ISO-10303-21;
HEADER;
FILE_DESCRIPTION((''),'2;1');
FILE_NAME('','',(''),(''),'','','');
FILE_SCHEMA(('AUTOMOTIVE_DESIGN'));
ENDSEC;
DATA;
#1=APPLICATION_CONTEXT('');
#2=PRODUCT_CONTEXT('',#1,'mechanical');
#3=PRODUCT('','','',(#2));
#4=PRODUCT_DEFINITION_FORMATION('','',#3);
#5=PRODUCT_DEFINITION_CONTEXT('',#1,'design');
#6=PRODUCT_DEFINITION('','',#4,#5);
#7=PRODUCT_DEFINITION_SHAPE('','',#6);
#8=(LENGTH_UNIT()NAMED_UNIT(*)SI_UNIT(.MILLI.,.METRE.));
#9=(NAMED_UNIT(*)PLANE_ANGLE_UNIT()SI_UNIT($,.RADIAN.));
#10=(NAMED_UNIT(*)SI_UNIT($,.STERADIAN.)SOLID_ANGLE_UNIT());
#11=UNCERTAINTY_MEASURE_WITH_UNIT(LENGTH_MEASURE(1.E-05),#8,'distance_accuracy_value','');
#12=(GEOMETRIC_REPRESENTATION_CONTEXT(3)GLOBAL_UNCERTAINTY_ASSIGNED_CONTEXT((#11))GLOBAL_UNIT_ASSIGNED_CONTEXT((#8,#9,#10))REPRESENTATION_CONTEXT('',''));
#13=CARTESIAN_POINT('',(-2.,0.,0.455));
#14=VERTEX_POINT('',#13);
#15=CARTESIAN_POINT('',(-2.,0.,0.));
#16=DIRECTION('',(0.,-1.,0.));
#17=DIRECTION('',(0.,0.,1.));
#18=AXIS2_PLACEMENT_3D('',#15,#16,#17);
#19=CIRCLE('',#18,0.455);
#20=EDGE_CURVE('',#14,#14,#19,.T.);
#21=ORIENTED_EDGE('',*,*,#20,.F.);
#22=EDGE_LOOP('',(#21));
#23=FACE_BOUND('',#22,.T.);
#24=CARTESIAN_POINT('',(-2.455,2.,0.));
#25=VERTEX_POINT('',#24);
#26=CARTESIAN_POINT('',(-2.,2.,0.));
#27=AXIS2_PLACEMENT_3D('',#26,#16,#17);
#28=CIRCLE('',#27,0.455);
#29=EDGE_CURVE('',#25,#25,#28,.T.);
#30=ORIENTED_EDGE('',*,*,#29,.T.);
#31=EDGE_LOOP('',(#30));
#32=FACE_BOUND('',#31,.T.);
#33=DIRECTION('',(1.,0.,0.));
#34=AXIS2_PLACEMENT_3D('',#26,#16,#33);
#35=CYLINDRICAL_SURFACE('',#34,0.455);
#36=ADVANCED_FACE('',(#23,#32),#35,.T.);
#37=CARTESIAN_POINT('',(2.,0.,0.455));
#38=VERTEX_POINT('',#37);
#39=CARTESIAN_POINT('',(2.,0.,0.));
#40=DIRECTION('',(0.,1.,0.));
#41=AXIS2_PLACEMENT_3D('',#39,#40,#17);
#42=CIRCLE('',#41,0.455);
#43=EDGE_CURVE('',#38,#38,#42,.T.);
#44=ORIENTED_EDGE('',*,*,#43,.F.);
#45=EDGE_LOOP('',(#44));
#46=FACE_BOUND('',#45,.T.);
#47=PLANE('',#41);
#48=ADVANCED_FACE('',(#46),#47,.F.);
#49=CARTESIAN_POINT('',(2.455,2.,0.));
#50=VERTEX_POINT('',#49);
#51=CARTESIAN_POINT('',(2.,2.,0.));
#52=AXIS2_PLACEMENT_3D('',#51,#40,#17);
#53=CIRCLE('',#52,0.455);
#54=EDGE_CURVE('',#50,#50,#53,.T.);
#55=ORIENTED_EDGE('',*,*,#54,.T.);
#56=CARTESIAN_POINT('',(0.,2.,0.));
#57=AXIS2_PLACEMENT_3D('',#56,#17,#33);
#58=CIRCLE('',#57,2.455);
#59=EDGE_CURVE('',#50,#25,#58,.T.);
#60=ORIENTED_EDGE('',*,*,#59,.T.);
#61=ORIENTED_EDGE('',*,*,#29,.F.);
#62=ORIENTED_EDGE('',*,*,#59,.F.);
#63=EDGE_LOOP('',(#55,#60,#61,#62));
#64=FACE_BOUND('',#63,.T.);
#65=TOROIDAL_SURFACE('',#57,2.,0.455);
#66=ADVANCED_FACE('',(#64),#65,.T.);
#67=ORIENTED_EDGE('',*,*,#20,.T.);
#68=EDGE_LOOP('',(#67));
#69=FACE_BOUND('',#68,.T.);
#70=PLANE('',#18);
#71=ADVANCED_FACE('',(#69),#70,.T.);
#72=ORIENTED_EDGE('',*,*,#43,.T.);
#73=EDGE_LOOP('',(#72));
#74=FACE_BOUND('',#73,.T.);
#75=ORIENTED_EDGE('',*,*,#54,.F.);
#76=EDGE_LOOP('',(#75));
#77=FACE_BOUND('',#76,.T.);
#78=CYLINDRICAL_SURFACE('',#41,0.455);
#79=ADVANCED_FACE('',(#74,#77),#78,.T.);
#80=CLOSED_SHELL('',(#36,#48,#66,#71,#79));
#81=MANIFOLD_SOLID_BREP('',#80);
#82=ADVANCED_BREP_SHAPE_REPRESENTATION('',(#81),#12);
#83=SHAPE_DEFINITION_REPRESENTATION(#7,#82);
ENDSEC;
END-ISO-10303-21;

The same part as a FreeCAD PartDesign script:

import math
import FreeCAD as App
import Part
import Sketcher

V = App.Vector

doc = App.newDocument("Part")
body = doc.addObject("PartDesign::Body", "Body")

sketch1 = body.newObject("Sketcher::SketchObject", "Sketch")
sketch1.AttachmentSupport = (doc.getObject("XZ_Plane"), [""])
sketch1.MapMode = "FlatFace"
sketch1.addGeometry(Part.Circle(V(-2, 0, 0), V(0, 0, 1), 0.46), False)
sketch1.addConstraint(Sketcher.Constraint("PointOnObject", 0, 3, -1))
sketch1.addConstraint(Sketcher.Constraint("Diameter", 0, 0.91))
sketch1.addConstraint(Sketcher.Constraint("DistanceX", 0, 3, -1, 1, 2.0))

sketch2 = body.newObject("Sketcher::SketchObject", "Sketch001")
sketch2.AttachmentSupport = (doc.getObject("XY_Plane"), [""])
sketch2.MapMode = "FlatFace"
sketch2.addGeometry(Part.LineSegment(V(-2, 0, 0), V(-2, 2, 0)), False)
sketch2.addGeometry(Part.ArcOfCircle(Part.Circle(V(0, 2, 0), V(0, 0, 1), 2), math.radians(0), math.radians(180)), False)
sketch2.addGeometry(Part.LineSegment(V(2, 2, 0), V(2, 0, 0)), False)
sketch2.addConstraint(Sketcher.Constraint("Tangent", 0, 2, 1, 2))
sketch2.addConstraint(Sketcher.Constraint("Tangent", 1, 1, 2, 1))
sketch2.addConstraint(Sketcher.Constraint("Vertical", 0))
sketch2.addConstraint(Sketcher.Constraint("Vertical", 2))
sketch2.addConstraint(Sketcher.Constraint("Symmetric", 0, 1, 2, 2, -1, 1))
sketch2.addConstraint(Sketcher.Constraint("PointOnObject", 0, 1, -1))
sketch2.addConstraint(Sketcher.Constraint("Radius", 1, 2.0))
sketch2.addConstraint(Sketcher.Constraint("DistanceY", 0, 1, 0, 2, 2.0))
doc.recompute()

additivepipe = body.newObject("PartDesign::AdditivePipe", "AdditivePipe")
additivepipe.Profile = sketch1
additivepipe.Spine = (sketch2, ["Edge1", "Edge2", "Edge3"])

doc.recompute()
